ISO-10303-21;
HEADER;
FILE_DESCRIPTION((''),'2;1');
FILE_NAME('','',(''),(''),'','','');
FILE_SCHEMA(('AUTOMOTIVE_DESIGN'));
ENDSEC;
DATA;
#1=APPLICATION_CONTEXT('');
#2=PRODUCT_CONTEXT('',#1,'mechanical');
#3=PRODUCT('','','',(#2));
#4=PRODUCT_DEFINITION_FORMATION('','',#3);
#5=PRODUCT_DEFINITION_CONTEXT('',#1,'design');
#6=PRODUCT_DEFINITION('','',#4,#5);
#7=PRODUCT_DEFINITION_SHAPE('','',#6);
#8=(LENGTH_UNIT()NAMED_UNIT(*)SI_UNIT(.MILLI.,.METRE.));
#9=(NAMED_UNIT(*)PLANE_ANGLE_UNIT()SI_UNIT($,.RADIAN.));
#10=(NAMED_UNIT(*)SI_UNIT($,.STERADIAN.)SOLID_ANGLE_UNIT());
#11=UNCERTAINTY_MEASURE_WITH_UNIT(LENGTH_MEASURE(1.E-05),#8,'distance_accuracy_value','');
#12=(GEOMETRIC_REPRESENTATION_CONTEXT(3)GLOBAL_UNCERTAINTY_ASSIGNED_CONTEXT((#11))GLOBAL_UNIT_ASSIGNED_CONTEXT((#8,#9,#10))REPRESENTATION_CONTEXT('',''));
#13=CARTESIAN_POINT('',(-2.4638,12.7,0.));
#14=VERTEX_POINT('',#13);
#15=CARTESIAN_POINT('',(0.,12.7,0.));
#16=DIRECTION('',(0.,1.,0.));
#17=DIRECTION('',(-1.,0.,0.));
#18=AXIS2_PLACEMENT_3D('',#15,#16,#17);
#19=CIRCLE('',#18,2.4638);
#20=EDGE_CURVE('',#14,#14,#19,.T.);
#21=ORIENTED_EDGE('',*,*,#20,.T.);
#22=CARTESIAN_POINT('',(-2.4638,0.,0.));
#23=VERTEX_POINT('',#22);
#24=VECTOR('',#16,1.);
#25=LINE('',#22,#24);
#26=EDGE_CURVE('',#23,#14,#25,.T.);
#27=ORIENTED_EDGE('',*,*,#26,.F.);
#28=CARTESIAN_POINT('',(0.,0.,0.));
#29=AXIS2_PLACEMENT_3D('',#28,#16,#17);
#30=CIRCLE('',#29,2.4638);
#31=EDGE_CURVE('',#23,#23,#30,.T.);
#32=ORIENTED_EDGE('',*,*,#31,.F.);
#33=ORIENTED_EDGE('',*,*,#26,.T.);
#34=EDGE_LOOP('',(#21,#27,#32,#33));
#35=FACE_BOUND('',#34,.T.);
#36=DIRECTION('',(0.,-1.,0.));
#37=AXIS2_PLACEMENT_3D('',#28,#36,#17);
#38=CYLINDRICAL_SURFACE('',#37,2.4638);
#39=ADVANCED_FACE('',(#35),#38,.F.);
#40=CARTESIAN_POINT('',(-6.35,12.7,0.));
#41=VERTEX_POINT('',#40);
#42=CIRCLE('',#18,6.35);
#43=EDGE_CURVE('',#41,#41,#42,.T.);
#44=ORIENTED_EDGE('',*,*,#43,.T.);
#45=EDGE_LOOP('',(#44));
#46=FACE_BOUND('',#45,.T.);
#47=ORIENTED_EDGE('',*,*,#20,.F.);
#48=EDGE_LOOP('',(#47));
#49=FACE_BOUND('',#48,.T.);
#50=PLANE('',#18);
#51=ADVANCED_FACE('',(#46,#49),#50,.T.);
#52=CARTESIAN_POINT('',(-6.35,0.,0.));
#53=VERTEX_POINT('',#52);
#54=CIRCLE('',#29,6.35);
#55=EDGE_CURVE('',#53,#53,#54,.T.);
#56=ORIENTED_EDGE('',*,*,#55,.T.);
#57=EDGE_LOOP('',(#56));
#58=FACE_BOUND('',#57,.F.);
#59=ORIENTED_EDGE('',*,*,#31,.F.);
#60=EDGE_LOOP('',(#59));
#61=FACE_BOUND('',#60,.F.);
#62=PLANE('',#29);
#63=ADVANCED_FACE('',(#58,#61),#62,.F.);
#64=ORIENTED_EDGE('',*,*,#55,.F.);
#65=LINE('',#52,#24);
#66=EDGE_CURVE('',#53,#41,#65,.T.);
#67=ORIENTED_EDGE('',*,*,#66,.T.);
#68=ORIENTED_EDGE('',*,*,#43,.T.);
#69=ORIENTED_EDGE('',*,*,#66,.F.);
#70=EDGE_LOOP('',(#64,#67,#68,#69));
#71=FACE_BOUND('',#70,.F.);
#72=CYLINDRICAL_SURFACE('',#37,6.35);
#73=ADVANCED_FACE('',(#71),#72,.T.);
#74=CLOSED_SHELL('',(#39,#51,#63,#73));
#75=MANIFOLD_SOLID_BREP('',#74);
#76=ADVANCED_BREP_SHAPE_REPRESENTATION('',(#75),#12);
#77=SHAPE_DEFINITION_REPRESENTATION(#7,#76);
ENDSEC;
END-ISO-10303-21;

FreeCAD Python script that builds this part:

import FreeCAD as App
import Part
import Sketcher

V = App.Vector
Q = App.Units.Quantity

doc = App.newDocument("Part")
body = doc.addObject("PartDesign::Body", "Body")

# Sketch on XZ plane
sketch1 = body.newObject("Sketcher::SketchObject", "Sketch")
sketch1.AttachmentSupport = (doc.getObject("XZ_Plane"), [""])
sketch1.MapMode = "FlatFace"
sketch1.addGeometry([
    Part.Circle(V(0, 0, 0), V(0, 0, 1), 6.3),
    Part.Circle(V(0, 0, 0), V(0, 0, 1), 2.5),
], False)
sketch1.addConstraint([
    Sketcher.Constraint("Coincident", 0, 3, -1, 1),
    Sketcher.Constraint("Coincident", 1, 3, -1, 1),
    Sketcher.Constraint("Diameter", 0, Q("0.5 in")),
    Sketcher.Constraint("Diameter", 1, Q("0.194 in")),
])
pad1 = body.newObject("PartDesign::Pad", "Pad")
pad1.Profile = sketch1
pad1.Length = Q("0.5 in")
pad1.Reversed = True

doc.recompute()
